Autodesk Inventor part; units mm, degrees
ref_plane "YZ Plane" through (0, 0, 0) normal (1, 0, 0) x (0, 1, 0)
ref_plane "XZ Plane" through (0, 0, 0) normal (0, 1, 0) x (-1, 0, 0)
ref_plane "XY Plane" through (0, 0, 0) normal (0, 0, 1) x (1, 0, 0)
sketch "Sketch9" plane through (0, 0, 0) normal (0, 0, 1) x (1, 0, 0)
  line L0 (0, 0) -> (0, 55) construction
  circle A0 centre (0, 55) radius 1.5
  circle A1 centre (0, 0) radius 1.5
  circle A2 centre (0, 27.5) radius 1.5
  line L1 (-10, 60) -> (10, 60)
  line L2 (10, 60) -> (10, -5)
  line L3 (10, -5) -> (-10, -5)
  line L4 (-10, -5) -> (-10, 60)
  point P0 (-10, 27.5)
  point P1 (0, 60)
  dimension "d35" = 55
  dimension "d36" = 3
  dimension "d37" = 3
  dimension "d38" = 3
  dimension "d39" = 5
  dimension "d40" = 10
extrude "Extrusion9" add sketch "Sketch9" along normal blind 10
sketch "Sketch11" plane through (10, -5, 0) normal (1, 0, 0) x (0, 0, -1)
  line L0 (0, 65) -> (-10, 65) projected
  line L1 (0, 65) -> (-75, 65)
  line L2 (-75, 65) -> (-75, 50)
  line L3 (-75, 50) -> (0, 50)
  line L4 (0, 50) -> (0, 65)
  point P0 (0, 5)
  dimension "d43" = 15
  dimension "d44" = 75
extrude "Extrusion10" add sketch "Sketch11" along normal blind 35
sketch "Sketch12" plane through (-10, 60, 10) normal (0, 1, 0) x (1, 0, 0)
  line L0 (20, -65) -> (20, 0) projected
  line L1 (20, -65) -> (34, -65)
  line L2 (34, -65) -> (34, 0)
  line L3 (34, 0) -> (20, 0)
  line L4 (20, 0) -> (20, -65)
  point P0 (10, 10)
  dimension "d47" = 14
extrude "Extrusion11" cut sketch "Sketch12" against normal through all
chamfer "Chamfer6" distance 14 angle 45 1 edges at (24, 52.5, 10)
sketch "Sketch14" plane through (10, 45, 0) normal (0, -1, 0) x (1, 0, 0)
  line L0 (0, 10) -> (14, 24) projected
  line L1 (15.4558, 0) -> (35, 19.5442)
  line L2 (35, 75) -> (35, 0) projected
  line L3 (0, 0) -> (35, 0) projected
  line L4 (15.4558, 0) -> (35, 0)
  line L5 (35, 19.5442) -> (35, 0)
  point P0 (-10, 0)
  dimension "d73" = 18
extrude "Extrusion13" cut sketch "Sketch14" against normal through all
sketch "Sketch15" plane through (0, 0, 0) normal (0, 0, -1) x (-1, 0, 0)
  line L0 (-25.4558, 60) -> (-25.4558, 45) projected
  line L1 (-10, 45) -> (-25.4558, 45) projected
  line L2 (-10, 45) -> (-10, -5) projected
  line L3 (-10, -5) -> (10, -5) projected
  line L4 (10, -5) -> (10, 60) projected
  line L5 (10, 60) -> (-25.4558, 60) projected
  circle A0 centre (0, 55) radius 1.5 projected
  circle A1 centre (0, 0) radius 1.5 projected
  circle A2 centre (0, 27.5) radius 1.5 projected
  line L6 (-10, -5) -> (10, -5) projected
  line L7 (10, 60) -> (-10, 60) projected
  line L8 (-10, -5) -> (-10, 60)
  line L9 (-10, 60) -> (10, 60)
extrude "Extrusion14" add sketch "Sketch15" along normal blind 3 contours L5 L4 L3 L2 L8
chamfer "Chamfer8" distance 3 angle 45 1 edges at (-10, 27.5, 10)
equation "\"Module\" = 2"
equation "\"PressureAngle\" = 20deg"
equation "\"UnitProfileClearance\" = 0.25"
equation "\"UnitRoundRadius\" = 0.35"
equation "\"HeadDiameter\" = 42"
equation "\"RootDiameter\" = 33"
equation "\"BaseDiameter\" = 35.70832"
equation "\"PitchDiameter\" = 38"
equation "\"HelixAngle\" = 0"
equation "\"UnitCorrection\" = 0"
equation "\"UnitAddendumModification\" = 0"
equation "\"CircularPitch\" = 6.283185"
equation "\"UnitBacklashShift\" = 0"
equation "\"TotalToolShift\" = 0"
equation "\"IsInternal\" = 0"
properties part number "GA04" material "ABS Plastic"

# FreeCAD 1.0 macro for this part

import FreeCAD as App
import Part
import Sketcher
Q = App.Units.Quantity


def edges_at(feature, points):
    """Names of the edges that pass closest to the given points."""
    edges = feature.Shape.Edges
    near = lambda p: min(range(len(edges)), key=lambda i: edges[i].distToShape(Part.Vertex(*p))[0])
    return sorted({f"Edge{near(p) + 1}" for p in points})

doc = App.newDocument("Part")
body = doc.addObject("PartDesign::Body", "Body")

# Sketch on XY plane
sketch1 = body.newObject("Sketcher::SketchObject", "Sketch")
sketch1.AttachmentSupport = (doc.getObject("XY_Plane"), [""])
sketch1.MapMode = "FlatFace"
sketch1.addGeometry([
    Part.LineSegment(App.Vector(10, 60, 0), App.Vector(-10, 60, 0)),  # 0
    Part.LineSegment(App.Vector(-10, 60, 0), App.Vector(-10, -5, 0)),  # 1
    Part.LineSegment(App.Vector(-10, -5, 0), App.Vector(10, -5, 0)),  # 2
    Part.LineSegment(App.Vector(10, -5, 0), App.Vector(10, 60, 0)),  # 3
    Part.Circle(App.Vector(0, 0, 0), App.Vector(0, 0, 1), 1.5),  # 4
    Part.Circle(App.Vector(0, 27.5, 0), App.Vector(0, 0, 1), 1.5),  # 5
    Part.Circle(App.Vector(0, 55, 0), App.Vector(0, 0, 1), 1.5),  # 6
], False)
sketch1.addConstraint([
    Sketcher.Constraint("Coincident", 0, 2, 1, 1),
    Sketcher.Constraint("Coincident", 1, 2, 2, 1),
    Sketcher.Constraint("Coincident", 2, 2, 3, 1),
    Sketcher.Constraint("Coincident", 3, 2, 0, 1),
    Sketcher.Constraint("Horizontal", 0),
    Sketcher.Constraint("Vertical", 1),
    Sketcher.Constraint("Horizontal", 2),
    Sketcher.Constraint("Vertical", 3),
    Sketcher.Constraint("Coincident", 4, 3, -1, 1),
    Sketcher.Constraint("Equal", 4, 5),
    Sketcher.Constraint("Equal", 5, 6),
    Sketcher.Constraint("PointOnObject", 5, 3, -2),
    Sketcher.Constraint("PointOnObject", 6, 3, -2),
    Sketcher.Constraint("Diameter", 4, Q("3 mm")),
    Sketcher.Constraint("DistanceY", -1, 1, 6, 3, Q("55 mm")),
    Sketcher.Constraint("DistanceX", 0, 2, -1, 1, Q("10 mm")),
    Sketcher.Constraint("DistanceY", 1, 2, -1, 1, Q("5 mm")),
    Sketcher.Constraint("DistanceX", -1, 1, 2, 2, Q("10 mm")),
    Sketcher.Constraint("DistanceY", 6, 3, 0, 2, Q("5 mm")),
    Sketcher.Constraint("DistanceY", -1, 1, 5, 3, Q("27.5 mm")),
])
pad1 = body.newObject("PartDesign::Pad", "Pad")
pad1.Profile = sketch1
pad1.Length = 10

# Sketch on YZ plane
sketch2 = body.newObject("Sketcher::SketchObject", "Sketch001")
sketch2.AttachmentSupport = (doc.getObject("YZ_Plane"), [""])
sketch2.MapMode = "FlatFace"
sketch2.AttachmentOffset = App.Placement(App.Vector(0, 0, 10), App.Rotation())
sketch2.addGeometry([
    Part.LineSegment(App.Vector(45, 0, 0), App.Vector(60, 0, 0)),
    Part.LineSegment(App.Vector(60, 0, 0), App.Vector(60, 75, 0)),
    Part.LineSegment(App.Vector(60, 75, 0), App.Vector(45, 75, 0)),
    Part.LineSegment(App.Vector(45, 75, 0), App.Vector(45, 0, 0)),
], False)
sketch2.addConstraint([
    Sketcher.Constraint("Coincident", 0, 2, 1, 1),
    Sketcher.Constraint("Coincident", 1, 2, 2, 1),
    Sketcher.Constraint("Coincident", 2, 2, 3, 1),
    Sketcher.Constraint("Coincident", 3, 2, 0, 1),
    Sketcher.Constraint("Horizontal", 0),
    Sketcher.Constraint("Vertical", 1),
    Sketcher.Constraint("Horizontal", 2),
    Sketcher.Constraint("Vertical", 3),
    Sketcher.Constraint("PointOnObject", 0, 2, -1),
    Sketcher.Constraint("DistanceX", 0, 1, 0, 2, Q("15 mm")),
    Sketcher.Constraint("DistanceY", 1, 1, 1, 2, Q("75 mm")),
    Sketcher.Constraint("DistanceX", -1, 1, 0, 2, Q("60 mm")),
])
pad2 = body.newObject("PartDesign::Pad", "Pad001")
pad2.Profile = sketch2
pad2.Length = 35

# Sketch on XZ plane
sketch3 = body.newObject("Sketcher::SketchObject", "Sketch002")
sketch3.AttachmentSupport = (doc.getObject("XZ_Plane"), [""])
sketch3.MapMode = "FlatFace"
sketch3.AttachmentOffset = App.Placement(App.Vector(0, 0, -60), App.Rotation())
sketch3.addGeometry([
    Part.LineSegment(App.Vector(10, 10, 0), App.Vector(10, 75, 0)),
    Part.LineSegment(App.Vector(10, 75, 0), App.Vector(24, 75, 0)),
    Part.LineSegment(App.Vector(24, 75, 0), App.Vector(24, 10, 0)),
    Part.LineSegment(App.Vector(24, 10, 0), App.Vector(10, 10, 0)),
], False)
sketch3.addConstraint([
    Sketcher.Constraint("Coincident", 0, 2, 1, 1),
    Sketcher.Constraint("Coincident", 1, 2, 2, 1),
    Sketcher.Constraint("Coincident", 2, 2, 3, 1),
    Sketcher.Constraint("Coincident", 3, 2, 0, 1),
    Sketcher.Constraint("Vertical", 0),
    Sketcher.Constraint("Horizontal", 1),
    Sketcher.Constraint("Vertical", 2),
    Sketcher.Constraint("Horizontal", 3),
    Sketcher.Constraint("DistanceX", 1, 1, 1, 2, Q("14 mm")),
    Sketcher.Constraint("DistanceY", 0, 1, 0, 2, Q("65 mm")),
    Sketcher.Constraint("DistanceX", -1, 1, 0, 2, Q("10 mm")),
    Sketcher.Constraint("DistanceY", -1, 1, 0, 2, Q("75 mm")),
])
pocket1 = body.newObject("PartDesign::Pocket", "Pocket")
pocket1.Profile = sketch3
pocket1.Type = "ThroughAll"
pocket1.Reversed = True
doc.recompute()

chamfer = body.newObject("PartDesign::Chamfer", "Chamfer")
chamfer.Base = (pocket1, edges_at(pocket1, [(24, 52.5, 10)]))
chamfer.Size = 14

# Sketch on XZ plane
sketch4 = body.newObject("Sketcher::SketchObject", "Sketch003")
sketch4.AttachmentSupport = (doc.getObject("XZ_Plane"), [""])
sketch4.MapMode = "FlatFace"
sketch4.AttachmentOffset = App.Placement(App.Vector(0, 0, -45), App.Rotation())
sketch4.addGeometry([
    Part.LineSegment(App.Vector(45, 20, 0), App.Vector(25, 0, 0)),
    Part.LineSegment(App.Vector(25, 0, 0), App.Vector(45, 0, 0)),
    Part.LineSegment(App.Vector(45, 0, 0), App.Vector(45, 20, 0)),
], False)
sketch4.addConstraint([
    Sketcher.Constraint("Coincident", 0, 2, 1, 1),
    Sketcher.Constraint("Coincident", 1, 2, 2, 1),
    Sketcher.Constraint("Coincident", 2, 2, 0, 1),
    Sketcher.Constraint("Horizontal", 1),
    Sketcher.Constraint("Vertical", 2),
    Sketcher.Constraint("PointOnObject", 0, 2, -1),
    Sketcher.Constraint("Equal", 1, 2),
    Sketcher.Constraint("DistanceX", -1, 1, 1, 2, Q("45 mm")),
    Sketcher.Constraint("DistanceX", 1, 1, 1, 2, Q("19.5442 mm")),
])
pocket2 = body.newObject("PartDesign::Pocket", "Pocket001")
pocket2.Profile = sketch4
pocket2.Type = "ThroughAll"

# Sketch on XY plane
sketch5 = body.newObject("Sketcher::SketchObject", "Sketch004")
sketch5.AttachmentSupport = (doc.getObject("XY_Plane"), [""])
sketch5.MapMode = "FlatFace"
sketch5.addGeometry([
    Part.LineSegment(App.Vector(-10, 60, 0), App.Vector(10, 60, 0)),  # 0
    Part.LineSegment(App.Vector(10, 60, 0), App.Vector(10, -5, 0)),  # 1
    Part.LineSegment(App.Vector(10, -5, 0), App.Vector(-10, -5, 0)),  # 2
    Part.LineSegment(App.Vector(-10, -5, 0), App.Vector(-10, 60, 0)),  # 3
    Part.Circle(App.Vector(0, 0, 0), App.Vector(0, 0, 1), 1.5),  # 4
    Part.Circle(App.Vector(0, 27.5, 0), App.Vector(0, 0, 1), 1.5),  # 5
    Part.Circle(App.Vector(0, 55, 0), App.Vector(0, 0, 1), 1.5),  # 6
], False)
sketch5.addConstraint([
    Sketcher.Constraint("Coincident", 0, 2, 1, 1),
    Sketcher.Constraint("Coincident", 1, 2, 2, 1),
    Sketcher.Constraint("Coincident", 2, 2, 3, 1),
    Sketcher.Constraint("Coincident", 3, 2, 0, 1),
    Sketcher.Constraint("Horizontal", 0),
    Sketcher.Constraint("Vertical", 1),
    Sketcher.Constraint("Horizontal", 2),
    Sketcher.Constraint("Vertical", 3),
    Sketcher.Constraint("Coincident", 4, 3, -1, 1),
    Sketcher.Constraint("Equal", 4, 5),
    Sketcher.Constraint("Equal", 5, 6),
    Sketcher.Constraint("PointOnObject", 5, 3, -2),
    Sketcher.Constraint("PointOnObject", 6, 3, -2),
    Sketcher.Constraint("Diameter", 4, Q("3 mm")),
    Sketcher.Constraint("DistanceX", 0, 1, 0, 2, Q("20 mm")),
    Sketcher.Constraint("DistanceY", 1, 2, 1, 1, Q("65 mm")),
    Sketcher.Constraint("DistanceY", -1, 1, 6, 3, Q("55 mm")),
    Sketcher.Constraint("DistanceX", -1, 1, 0, 2, Q("10 mm")),
    Sketcher.Constraint("DistanceY", -1, 1, 0, 2, Q("60 mm")),
    Sketcher.Constraint("DistanceY", -1, 1, 5, 3, Q("27.5 mm")),
])
pad3 = body.newObject("PartDesign::Pad", "Pad002")
pad3.Profile = sketch5
pad3.Length = 3
pad3.Reversed = True
doc.recompute()

chamfer2 = body.newObject("PartDesign::Chamfer", "Chamfer001")
chamfer2.Base = (pad3, edges_at(pad3, [(-10, 27.5, 10)]))
chamfer2.Size = 3

doc.recompute()
